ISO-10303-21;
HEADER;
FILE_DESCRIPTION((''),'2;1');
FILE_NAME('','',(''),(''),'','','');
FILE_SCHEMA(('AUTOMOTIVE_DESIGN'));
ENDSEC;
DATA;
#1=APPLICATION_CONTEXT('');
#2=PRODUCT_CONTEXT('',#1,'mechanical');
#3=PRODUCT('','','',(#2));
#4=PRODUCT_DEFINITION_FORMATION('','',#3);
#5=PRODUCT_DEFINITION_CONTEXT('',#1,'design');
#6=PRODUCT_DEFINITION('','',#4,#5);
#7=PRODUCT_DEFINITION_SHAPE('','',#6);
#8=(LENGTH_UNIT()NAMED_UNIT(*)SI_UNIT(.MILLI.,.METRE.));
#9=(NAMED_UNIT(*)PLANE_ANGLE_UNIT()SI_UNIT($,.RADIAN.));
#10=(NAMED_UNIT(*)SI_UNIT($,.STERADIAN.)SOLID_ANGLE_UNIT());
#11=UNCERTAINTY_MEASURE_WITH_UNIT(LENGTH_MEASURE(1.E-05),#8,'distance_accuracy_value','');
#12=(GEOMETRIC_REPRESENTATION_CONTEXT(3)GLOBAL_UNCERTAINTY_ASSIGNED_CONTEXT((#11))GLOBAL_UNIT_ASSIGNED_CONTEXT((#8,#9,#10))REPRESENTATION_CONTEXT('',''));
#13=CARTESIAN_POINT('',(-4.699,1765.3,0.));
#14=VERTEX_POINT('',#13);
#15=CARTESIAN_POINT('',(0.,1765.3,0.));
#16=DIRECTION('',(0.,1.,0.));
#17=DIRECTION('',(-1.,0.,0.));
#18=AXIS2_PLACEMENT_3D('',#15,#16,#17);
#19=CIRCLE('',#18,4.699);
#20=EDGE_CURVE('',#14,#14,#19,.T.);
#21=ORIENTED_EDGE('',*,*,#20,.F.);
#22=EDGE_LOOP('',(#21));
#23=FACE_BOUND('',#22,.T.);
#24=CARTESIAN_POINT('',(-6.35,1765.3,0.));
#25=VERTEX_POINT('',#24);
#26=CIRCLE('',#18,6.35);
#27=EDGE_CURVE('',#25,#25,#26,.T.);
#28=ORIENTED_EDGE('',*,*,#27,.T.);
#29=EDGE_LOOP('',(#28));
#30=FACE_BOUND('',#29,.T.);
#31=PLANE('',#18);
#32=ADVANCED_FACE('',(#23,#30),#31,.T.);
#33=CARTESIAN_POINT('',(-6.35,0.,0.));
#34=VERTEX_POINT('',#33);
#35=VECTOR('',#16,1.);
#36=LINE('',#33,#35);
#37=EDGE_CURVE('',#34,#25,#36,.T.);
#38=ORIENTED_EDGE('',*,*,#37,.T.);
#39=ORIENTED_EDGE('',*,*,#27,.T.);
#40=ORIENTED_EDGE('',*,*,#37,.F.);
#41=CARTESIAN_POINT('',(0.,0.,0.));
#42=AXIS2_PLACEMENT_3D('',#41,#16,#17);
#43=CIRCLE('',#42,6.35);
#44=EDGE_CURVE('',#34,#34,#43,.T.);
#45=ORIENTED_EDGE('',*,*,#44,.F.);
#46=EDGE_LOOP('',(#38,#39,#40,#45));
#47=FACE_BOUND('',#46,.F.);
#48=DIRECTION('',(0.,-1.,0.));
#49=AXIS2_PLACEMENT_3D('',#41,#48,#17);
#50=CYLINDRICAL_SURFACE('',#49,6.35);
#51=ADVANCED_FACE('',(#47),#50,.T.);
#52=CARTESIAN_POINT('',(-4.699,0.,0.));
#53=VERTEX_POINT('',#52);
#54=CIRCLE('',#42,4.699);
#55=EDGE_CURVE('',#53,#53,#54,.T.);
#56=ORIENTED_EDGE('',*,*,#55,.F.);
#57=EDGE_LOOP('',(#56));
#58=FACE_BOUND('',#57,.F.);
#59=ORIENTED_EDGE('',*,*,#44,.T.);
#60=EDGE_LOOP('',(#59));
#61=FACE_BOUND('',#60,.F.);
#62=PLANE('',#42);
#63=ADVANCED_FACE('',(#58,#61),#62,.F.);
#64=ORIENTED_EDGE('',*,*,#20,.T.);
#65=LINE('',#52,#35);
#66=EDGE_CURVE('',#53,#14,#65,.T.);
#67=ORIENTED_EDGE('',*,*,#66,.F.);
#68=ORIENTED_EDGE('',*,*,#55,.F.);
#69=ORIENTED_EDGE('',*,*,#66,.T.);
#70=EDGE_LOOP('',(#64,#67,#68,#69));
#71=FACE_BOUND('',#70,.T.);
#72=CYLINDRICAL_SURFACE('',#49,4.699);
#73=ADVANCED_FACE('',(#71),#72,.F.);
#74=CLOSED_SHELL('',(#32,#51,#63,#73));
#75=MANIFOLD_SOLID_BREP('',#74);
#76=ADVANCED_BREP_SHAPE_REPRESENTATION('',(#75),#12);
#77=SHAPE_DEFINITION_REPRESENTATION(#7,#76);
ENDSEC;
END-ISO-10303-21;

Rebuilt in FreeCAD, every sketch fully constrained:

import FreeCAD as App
import Part
import Sketcher
Q = App.Units.Quantity

doc = App.newDocument("Part")
body = doc.addObject("PartDesign::Body", "Body")

# Sketch on XZ plane
sketch1 = doc.addObject("Sketcher::SketchObject", "Sketch")
body.addObject(sketch1)
sketch1.AttachmentSupport = (doc.XZ_Plane, [""])
sketch1.MapMode = "FlatFace"
sketch1.addGeometry([
    Part.Circle(App.Vector(0, 0, 0), App.Vector(0, 0, 1), 6.35),
    Part.Circle(App.Vector(0, 0, 0), App.Vector(0, 0, 1), 4.699),
], False)
sketch1.addConstraint([
    Sketcher.Constraint("Coincident", 0, 3, -1, 1),
    Sketcher.Constraint("Coincident", 1, 3, -1, 1),
    Sketcher.Constraint("Diameter", 0, Q("0.5 in")),
    Sketcher.Constraint("Diameter", 1, Q("0.37 in")),
])
pad1 = doc.addObject("PartDesign::Pad", "Pad")
body.addObject(pad1)
pad1.Profile = sketch1
pad1.Length = Q("69.5 in")
pad1.Reversed = True

doc.recompute()
